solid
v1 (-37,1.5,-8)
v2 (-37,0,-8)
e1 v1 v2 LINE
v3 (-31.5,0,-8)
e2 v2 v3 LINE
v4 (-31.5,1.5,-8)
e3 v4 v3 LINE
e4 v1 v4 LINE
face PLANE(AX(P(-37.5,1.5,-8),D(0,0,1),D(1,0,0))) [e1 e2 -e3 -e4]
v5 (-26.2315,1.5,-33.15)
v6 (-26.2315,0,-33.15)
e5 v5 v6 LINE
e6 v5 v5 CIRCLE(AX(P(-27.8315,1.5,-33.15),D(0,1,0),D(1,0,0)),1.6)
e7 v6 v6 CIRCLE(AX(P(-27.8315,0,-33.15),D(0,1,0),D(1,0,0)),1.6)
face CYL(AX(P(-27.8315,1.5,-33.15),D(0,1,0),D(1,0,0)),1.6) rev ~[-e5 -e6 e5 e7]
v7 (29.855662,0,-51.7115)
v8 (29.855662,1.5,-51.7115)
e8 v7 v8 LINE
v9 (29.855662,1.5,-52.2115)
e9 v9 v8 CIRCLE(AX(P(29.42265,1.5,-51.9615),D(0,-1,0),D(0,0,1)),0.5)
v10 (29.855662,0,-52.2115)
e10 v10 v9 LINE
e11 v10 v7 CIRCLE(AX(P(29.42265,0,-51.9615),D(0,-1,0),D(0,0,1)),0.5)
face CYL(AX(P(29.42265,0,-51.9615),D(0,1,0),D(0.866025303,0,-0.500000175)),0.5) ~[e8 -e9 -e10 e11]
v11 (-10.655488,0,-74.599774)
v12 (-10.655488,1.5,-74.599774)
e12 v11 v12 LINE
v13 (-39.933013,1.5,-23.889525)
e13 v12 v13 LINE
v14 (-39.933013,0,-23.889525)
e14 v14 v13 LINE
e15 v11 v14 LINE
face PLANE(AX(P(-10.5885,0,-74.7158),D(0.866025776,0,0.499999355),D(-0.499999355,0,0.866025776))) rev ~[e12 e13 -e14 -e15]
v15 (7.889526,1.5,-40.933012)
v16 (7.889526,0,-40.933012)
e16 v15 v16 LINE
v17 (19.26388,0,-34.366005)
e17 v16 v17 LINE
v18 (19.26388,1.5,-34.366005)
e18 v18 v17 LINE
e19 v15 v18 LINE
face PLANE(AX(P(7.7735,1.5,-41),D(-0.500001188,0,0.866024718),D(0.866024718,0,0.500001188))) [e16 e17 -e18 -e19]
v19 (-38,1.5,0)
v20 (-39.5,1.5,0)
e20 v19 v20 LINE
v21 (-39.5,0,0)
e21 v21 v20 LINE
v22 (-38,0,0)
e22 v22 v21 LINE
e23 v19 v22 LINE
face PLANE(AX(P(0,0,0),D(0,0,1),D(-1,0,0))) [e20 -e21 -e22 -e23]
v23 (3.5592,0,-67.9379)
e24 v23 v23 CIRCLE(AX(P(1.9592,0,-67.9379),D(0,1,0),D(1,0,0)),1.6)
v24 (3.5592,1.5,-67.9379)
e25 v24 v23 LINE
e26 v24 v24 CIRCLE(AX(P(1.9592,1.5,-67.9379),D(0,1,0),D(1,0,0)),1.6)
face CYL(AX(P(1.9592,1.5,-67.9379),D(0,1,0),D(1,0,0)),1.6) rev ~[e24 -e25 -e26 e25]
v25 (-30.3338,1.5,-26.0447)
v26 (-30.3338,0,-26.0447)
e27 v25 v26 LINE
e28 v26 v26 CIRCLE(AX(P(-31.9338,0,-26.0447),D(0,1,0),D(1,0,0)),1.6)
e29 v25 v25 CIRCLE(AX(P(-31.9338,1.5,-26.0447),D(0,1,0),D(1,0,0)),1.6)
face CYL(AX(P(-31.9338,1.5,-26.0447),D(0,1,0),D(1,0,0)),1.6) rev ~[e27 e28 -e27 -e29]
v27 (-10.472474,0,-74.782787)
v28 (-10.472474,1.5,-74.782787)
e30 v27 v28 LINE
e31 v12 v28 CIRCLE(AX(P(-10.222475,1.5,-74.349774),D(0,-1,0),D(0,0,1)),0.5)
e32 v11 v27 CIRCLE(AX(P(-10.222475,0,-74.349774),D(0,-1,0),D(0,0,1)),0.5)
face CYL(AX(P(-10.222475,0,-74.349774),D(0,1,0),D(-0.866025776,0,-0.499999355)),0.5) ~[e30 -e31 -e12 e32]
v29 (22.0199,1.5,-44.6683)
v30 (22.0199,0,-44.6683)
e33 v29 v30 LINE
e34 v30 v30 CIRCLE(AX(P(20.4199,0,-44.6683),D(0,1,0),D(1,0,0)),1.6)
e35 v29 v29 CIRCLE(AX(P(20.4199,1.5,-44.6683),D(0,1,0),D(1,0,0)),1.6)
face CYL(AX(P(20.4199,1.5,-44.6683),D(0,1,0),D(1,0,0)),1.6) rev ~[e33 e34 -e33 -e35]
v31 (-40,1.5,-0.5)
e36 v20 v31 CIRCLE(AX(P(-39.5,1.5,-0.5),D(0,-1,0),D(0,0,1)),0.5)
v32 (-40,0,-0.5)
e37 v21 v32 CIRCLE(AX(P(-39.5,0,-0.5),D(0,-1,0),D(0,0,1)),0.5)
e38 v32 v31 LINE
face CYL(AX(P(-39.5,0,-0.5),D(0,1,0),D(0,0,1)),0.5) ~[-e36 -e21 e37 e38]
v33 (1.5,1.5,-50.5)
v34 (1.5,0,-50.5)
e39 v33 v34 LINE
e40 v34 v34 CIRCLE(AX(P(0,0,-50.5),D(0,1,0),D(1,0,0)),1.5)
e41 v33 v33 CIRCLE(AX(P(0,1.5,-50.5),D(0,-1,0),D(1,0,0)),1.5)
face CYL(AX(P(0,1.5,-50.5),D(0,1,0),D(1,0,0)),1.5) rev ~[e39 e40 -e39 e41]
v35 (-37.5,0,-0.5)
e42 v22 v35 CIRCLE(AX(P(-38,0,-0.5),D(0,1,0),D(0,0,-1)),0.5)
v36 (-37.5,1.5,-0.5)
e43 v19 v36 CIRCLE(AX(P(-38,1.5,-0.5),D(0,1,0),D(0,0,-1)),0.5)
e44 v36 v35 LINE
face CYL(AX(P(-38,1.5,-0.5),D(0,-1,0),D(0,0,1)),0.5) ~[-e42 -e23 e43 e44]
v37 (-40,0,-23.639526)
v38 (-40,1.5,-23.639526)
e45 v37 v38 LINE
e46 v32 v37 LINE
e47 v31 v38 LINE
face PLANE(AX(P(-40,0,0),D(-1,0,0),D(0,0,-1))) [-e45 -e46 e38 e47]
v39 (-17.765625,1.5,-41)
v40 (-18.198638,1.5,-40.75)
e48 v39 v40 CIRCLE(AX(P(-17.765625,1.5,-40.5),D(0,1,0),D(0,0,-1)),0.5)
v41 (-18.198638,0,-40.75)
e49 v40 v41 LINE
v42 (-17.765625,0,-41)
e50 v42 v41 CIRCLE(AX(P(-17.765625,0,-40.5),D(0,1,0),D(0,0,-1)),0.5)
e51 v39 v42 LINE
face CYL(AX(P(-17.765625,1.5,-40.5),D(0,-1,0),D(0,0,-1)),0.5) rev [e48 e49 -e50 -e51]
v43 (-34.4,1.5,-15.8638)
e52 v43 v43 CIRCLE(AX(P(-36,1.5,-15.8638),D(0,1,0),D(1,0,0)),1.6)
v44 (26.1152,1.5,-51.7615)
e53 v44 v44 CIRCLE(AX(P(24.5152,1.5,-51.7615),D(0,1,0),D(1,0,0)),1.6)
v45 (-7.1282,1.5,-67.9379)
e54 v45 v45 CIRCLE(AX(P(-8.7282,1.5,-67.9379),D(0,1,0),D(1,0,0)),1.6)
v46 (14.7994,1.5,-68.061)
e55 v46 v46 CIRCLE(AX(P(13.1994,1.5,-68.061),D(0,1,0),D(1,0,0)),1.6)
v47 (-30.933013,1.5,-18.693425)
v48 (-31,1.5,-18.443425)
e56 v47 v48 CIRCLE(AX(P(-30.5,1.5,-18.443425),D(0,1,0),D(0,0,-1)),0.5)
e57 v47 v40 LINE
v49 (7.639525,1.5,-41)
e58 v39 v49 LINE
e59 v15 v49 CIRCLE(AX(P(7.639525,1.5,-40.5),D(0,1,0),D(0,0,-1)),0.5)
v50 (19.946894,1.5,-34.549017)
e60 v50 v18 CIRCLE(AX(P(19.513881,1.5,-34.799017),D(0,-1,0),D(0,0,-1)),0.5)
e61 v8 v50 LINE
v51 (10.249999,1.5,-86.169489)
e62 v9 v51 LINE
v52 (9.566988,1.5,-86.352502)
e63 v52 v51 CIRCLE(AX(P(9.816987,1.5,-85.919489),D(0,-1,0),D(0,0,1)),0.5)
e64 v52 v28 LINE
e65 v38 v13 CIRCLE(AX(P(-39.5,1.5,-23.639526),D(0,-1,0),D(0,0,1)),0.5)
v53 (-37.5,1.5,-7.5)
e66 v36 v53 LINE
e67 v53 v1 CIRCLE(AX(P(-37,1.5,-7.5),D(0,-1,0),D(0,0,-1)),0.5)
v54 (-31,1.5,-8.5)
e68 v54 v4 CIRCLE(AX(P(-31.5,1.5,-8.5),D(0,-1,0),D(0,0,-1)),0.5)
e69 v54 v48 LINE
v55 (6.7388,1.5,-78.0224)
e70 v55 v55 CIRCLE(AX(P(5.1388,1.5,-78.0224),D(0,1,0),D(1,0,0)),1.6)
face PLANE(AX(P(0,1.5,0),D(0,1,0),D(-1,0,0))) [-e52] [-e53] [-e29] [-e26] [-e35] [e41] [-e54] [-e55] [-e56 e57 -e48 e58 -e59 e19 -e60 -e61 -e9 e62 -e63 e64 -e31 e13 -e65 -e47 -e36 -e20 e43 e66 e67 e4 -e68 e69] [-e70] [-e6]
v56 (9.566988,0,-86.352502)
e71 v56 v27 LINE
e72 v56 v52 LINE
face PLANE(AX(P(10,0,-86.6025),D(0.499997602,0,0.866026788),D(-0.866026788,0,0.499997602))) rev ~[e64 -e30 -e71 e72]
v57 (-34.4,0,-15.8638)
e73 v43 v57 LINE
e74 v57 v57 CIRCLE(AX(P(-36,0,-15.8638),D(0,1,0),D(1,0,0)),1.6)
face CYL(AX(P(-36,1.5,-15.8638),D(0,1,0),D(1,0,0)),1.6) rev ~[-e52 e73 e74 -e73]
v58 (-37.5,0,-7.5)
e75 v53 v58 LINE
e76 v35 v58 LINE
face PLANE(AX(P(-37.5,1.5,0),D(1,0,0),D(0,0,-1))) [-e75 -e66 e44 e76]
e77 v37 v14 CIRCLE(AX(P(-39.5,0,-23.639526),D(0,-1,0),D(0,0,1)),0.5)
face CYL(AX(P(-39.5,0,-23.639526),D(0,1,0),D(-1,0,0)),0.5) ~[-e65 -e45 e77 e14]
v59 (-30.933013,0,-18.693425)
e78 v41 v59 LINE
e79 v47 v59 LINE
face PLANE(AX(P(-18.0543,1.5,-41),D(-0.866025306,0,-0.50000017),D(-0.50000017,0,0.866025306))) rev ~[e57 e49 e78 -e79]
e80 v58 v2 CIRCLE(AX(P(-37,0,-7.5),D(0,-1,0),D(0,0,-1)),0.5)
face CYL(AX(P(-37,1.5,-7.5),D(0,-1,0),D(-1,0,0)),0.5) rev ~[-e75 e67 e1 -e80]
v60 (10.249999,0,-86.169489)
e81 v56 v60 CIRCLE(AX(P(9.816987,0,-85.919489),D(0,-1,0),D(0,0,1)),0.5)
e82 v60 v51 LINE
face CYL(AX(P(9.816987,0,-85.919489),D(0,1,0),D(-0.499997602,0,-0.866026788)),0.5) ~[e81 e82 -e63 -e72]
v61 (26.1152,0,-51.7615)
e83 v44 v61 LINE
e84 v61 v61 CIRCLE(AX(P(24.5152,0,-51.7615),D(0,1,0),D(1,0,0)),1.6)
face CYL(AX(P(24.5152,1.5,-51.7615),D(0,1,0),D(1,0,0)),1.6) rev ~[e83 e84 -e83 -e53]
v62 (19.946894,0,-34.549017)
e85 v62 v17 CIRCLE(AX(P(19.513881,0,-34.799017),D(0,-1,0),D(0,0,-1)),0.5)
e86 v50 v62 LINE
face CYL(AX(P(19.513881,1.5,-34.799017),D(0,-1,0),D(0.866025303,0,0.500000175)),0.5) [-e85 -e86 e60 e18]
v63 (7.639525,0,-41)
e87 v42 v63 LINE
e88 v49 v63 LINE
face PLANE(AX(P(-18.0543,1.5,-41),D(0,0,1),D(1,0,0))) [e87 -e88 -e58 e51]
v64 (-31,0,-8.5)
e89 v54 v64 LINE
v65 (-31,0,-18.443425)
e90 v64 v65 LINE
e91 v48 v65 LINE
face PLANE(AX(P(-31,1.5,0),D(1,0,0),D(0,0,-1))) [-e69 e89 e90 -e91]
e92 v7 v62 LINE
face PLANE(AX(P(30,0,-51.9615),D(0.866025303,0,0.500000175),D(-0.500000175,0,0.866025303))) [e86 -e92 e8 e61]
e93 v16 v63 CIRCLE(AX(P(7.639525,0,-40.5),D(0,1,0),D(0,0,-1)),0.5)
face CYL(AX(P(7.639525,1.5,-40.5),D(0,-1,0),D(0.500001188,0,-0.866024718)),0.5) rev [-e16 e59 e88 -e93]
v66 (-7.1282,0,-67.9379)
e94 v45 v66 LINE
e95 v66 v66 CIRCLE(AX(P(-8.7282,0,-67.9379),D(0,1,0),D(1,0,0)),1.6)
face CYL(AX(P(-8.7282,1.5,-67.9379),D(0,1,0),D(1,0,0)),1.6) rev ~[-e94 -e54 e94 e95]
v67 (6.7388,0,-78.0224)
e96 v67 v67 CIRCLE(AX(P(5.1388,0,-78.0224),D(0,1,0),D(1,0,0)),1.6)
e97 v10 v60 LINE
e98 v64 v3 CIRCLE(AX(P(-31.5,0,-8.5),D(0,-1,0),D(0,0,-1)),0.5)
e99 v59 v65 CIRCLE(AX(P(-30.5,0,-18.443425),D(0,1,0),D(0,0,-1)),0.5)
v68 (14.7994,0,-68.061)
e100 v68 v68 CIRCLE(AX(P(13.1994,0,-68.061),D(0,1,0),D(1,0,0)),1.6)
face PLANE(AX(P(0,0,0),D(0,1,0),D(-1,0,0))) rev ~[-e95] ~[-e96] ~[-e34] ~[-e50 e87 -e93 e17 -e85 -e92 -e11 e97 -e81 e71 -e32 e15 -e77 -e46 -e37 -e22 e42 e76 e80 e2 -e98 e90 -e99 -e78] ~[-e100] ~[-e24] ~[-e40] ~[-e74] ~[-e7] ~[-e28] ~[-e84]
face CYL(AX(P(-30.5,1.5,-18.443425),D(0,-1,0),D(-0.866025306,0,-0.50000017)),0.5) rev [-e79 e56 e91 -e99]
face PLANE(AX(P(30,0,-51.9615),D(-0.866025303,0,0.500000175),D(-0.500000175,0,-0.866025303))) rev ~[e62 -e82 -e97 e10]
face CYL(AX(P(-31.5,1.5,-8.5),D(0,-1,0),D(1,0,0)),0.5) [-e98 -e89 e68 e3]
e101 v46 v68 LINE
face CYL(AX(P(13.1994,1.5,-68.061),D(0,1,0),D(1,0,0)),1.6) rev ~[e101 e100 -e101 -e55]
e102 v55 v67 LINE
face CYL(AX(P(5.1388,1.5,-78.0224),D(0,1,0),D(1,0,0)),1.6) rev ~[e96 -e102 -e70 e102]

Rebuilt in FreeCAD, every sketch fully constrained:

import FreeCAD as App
import Part
import Sketcher
from FreeCAD import Vector
Q = App.Units.Quantity


def edges_at(feature, points):
    """Names of the edges that pass closest to the given points."""
    edges = feature.Shape.Edges
    near = lambda p: min(range(len(edges)), key=lambda i: edges[i].distToShape(Part.Vertex(*p))[0])
    return sorted({f"Edge{near(p) + 1}" for p in points})


def add_polygon(sketch, points):
    """Adds a closed chain of lines whose ends are joined by coincident constraints."""
    first, n = sketch.GeometryCount, len(points)
    for a, b in zip(points, points[1:] + points[:1]):
        sketch.addGeometry(Part.LineSegment(App.Vector(*a, 0), App.Vector(*b, 0)), False)
    for i in range(n):
        sketch.addConstraint(Sketcher.Constraint("Coincident", first + i, 2, first + (i + 1) % n, 1))

doc = App.newDocument("Part")
body = doc.addObject("PartDesign::Body", "Body")

# Sketch on XZ plane
sketch1 = body.newObject("Sketcher::SketchObject", "Sketch")
sketch1.AttachmentSupport = (doc.getObject("XZ_Plane"), [""])
sketch1.MapMode = "FlatFace"
add_polygon(sketch1, [(-40, 0), (0, 0), (30, -52), (10, -87), (-11, -75), (-40, -24)])  # lines 0-5
sketch1.addConstraint(Sketcher.Constraint("Horizontal", 0))
sketch1.addConstraint(Sketcher.Constraint("Vertical", 5))
sketch1.addConstraint(Sketcher.Constraint("Coincident", 0, 2, -1, 1))
sketch1.addConstraint(Sketcher.Constraint("Perpendicular", 2, 3))
sketch1.addConstraint(Sketcher.Constraint("Parallel", 1, 4))
sketch1.addConstraint(Sketcher.Constraint("DistanceX", 0, 1, 0, 2, 40.0))
sketch1.addConstraint(Sketcher.Constraint("Angle", 1, Q("-60 deg")))
sketch1.addConstraint(Sketcher.Constraint("Distance", 1, 60.0))
sketch1.addConstraint(Sketcher.Constraint("Distance", 2, 40.0))
sketch1.addConstraint(Sketcher.Constraint("Angle", 2, Q("-120 deg")))
sketch1.addConstraint(Sketcher.Constraint("Distance", 4, 58.823))
pad1 = body.newObject("PartDesign::Pad", "Pad")
pad1.Profile = sketch1
pad1.Length = 1.5
pad1.Reversed = True

# Sketch on XZ plane
sketch2 = body.newObject("Sketcher::SketchObject", "Sketch001")
sketch2.AttachmentSupport = (doc.getObject("XZ_Plane"), [""])
sketch2.MapMode = "FlatFace"
sketch2.AttachmentOffset = App.Placement(Vector(0, 0, -1.5), App.Rotation())
sketch2.addGeometry(Part.Circle(Vector(0, -50.5, 0), Vector(0, 0, 1), 1.5), False)  # 0
add_polygon(sketch2, [(-18.1, -41), (-31, -18.6), (-31, 0), (0, 0), (19.7, -34.1), (7.8, -41)])  # lines 1-6
sketch2.addConstraint(Sketcher.Constraint("Vertical", 2))
sketch2.addConstraint(Sketcher.Constraint("Horizontal", 3))
sketch2.addConstraint(Sketcher.Constraint("Horizontal", 6))
sketch2.addConstraint(Sketcher.Constraint("Coincident", 3, 2, -1, 1))
sketch2.addConstraint(Sketcher.Constraint("PointOnObject", 0, 3, -2))
sketch2.addConstraint(Sketcher.Constraint("Parallel", 1, 4))
sketch2.addConstraint(Sketcher.Constraint("Perpendicular", 4, 5))
sketch2.addConstraint(Sketcher.Constraint("Diameter", 0, 3.0))
sketch2.addConstraint(Sketcher.Constraint("DistanceY", 0, 3, 5, 2, 9.5))
sketch2.addConstraint(Sketcher.Constraint("DistanceX", 3, 1, 3, 2, 31.0))
sketch2.addConstraint(Sketcher.Constraint("Angle", 1, Q("120 deg")))
sketch2.addConstraint(Sketcher.Constraint("DistanceY", 5, 2, -1, 1, 41.0))
sketch2.addConstraint(Sketcher.Constraint("Distance", 5, 13.768))
sketch2.addConstraint(Sketcher.Constraint("DistanceX", 6, 2, 6, 1, 25.8278))
pocket1 = body.newObject("PartDesign::Pocket", "Pocket")
pocket1.Profile = sketch2
pocket1.Length = 1.5
pocket1.Reversed = True

# Sketch on XZ plane
sketch3 = body.newObject("Sketcher::SketchObject", "Sketch002")
sketch3.AttachmentSupport = (doc.getObject("XZ_Plane"), [""])
sketch3.MapMode = "FlatFace"
sketch3.AttachmentOffset = App.Placement(Vector(0, 0, -1.5), App.Rotation())
sketch3.addGeometry(Part.Circle(Vector(5.1, -78, 0), Vector(0, 0, 1), 1.6), False)  # 0
sketch3.addGeometry(Part.Circle(Vector(13.2, -68.1, 0), Vector(0, 0, 1), 1.6), False)  # 1
sketch3.addGeometry(Part.Circle(Vector(-36, -15.9, 0), Vector(0, 0, 1), 1.6), False)  # 2
sketch3.addGeometry(Part.Circle(Vector(20.4, -44.7, 0), Vector(0, 0, 1), 1.6), False)  # 3
sketch3.addGeometry(Part.Circle(Vector(24.5, -51.8, 0), Vector(0, 0, 1), 1.6), False)  # 4
sketch3.addGeometry(Part.Circle(Vector(-27.8, -33.1, 0), Vector(0, 0, 1), 1.6), False)  # 5
sketch3.addGeometry(Part.Circle(Vector(-31.9, -26, 0), Vector(0, 0, 1), 1.6), False)  # 6
sketch3.addGeometry(Part.Circle(Vector(-8.7, -67.9, 0), Vector(0, 0, 1), 1.6), False)  # 7
sketch3.addGeometry(Part.Circle(Vector(2, -67.9, 0), Vector(0, 0, 1), 1.6), False)  # 8
add_polygon(sketch3, [(-31, 0), (-31, -8), (-37.5, -8), (-37.5, 0)])  # lines 9-12
sketch3.addConstraint(Sketcher.Constraint("Vertical", 9))
sketch3.addConstraint(Sketcher.Constraint("Horizontal", 10))
sketch3.addConstraint(Sketcher.Constraint("Vertical", 11))
sketch3.addConstraint(Sketcher.Constraint("Horizontal", 12))
sketch3.addConstraint(Sketcher.Constraint("Equal", 0, 1))
sketch3.addConstraint(Sketcher.Constraint("Equal", 1, 2))
sketch3.addConstraint(Sketcher.Constraint("Equal", 2, 3))
sketch3.addConstraint(Sketcher.Constraint("Equal", 3, 4))
sketch3.addConstraint(Sketcher.Constraint("Equal", 4, 5))
sketch3.addConstraint(Sketcher.Constraint("Equal", 5, 6))
sketch3.addConstraint(Sketcher.Constraint("Equal", 6, 7))
sketch3.addConstraint(Sketcher.Constraint("Equal", 7, 8))
sketch3.addConstraint(Sketcher.Constraint("PointOnObject", 11, 2, -1))
sketch3.addConstraint(Sketcher.Constraint("Horizontal", 7, 3, 8, 3))
sketch3.addConstraint(Sketcher.Constraint("DistanceY", 9, 2, 9, 1, 8.0))
sketch3.addConstraint(Sketcher.Constraint("Diameter", 0, 3.2))
sketch3.addConstraint(Sketcher.Constraint("DistanceX", 10, 2, 10, 1, 6.5))
sketch3.addConstraint(Sketcher.Constraint("DistanceX", 2, 3, -1, 1, 36.0))
sketch3.addConstraint(Sketcher.Constraint("DistanceX", 9, 2, -1, 1, 31.0))
sketch3.addConstraint(Sketcher.Constraint("DistanceX", -1, 1, 3, 3, 20.42))
sketch3.addConstraint(Sketcher.Constraint("DistanceY", 5, 3, -1, 1, 33.15))
sketch3.addConstraint(Sketcher.Constraint("DistanceY", 1, 3, -1, 1, 68.061))
sketch3.addConstraint(Sketcher.Constraint("DistanceY", 7, 3, -1, 1, 67.938))
sketch3.addConstraint(Sketcher.Constraint("DistanceX", 0, 3, 3, 3, 15.281))
sketch3.addConstraint(Sketcher.Constraint("DistanceY", 0, 3, 3, 3, 33.354))
sketch3.addConstraint(Sketcher.Constraint("DistanceY", 0, 3, 4, 3, 26.261))
sketch3.addConstraint(Sketcher.Constraint("DistanceX", 5, 3, 1, 3, 41.031))
sketch3.addConstraint(Sketcher.Constraint("DistanceY", 6, 3, 2, 3, 10.181))
sketch3.addConstraint(Sketcher.Constraint("DistanceX", 6, 3, 4, 3, 56.449))
sketch3.addConstraint(Sketcher.Constraint("DistanceX", 7, 3, 0, 3, 13.867))
sketch3.addConstraint(Sketcher.Constraint("DistanceX", 8, 3, 4, 3, 22.556))
sketch3.addConstraint(Sketcher.Constraint("DistanceY", 0, 3, -1, 1, 78.0224))
sketch3.addConstraint(Sketcher.Constraint("DistanceX", -1, 1, 1, 3, 13.1994))
sketch3.addConstraint(Sketcher.Constraint("DistanceY", 2, 3, -1, 1, 15.8638))
sketch3.addConstraint(Sketcher.Constraint("DistanceX", -1, 1, 4, 3, 24.5152))
pocket2 = body.newObject("PartDesign::Pocket", "Pocket001")
pocket2.Profile = sketch3
pocket2.Length = 1.5
pocket2.Reversed = True
doc.recompute()

fillet = body.newObject("PartDesign::Fillet", "Fillet")
fillet.Base = (pocket2, edges_at(pocket2, [
    (10, 0.75, -86.603),
    (30, 0.75, -51.962),
    (-10.588, 0.75, -74.716),
    (-40, 0.75, -23.773),
    (-40, 0.75, 0),
    (-37.5, 0.75, 0),
    (-37.5, 0.75, -8),
    (-31, 0.75, -8),
    (-31, 0.75, -18.577),
    (-18.054, 0.75, -41),
    (7.774, 0.75, -41),
    (19.697, 0.75, -34.116),
]))
fillet.Radius = 0.5

doc.recompute()
